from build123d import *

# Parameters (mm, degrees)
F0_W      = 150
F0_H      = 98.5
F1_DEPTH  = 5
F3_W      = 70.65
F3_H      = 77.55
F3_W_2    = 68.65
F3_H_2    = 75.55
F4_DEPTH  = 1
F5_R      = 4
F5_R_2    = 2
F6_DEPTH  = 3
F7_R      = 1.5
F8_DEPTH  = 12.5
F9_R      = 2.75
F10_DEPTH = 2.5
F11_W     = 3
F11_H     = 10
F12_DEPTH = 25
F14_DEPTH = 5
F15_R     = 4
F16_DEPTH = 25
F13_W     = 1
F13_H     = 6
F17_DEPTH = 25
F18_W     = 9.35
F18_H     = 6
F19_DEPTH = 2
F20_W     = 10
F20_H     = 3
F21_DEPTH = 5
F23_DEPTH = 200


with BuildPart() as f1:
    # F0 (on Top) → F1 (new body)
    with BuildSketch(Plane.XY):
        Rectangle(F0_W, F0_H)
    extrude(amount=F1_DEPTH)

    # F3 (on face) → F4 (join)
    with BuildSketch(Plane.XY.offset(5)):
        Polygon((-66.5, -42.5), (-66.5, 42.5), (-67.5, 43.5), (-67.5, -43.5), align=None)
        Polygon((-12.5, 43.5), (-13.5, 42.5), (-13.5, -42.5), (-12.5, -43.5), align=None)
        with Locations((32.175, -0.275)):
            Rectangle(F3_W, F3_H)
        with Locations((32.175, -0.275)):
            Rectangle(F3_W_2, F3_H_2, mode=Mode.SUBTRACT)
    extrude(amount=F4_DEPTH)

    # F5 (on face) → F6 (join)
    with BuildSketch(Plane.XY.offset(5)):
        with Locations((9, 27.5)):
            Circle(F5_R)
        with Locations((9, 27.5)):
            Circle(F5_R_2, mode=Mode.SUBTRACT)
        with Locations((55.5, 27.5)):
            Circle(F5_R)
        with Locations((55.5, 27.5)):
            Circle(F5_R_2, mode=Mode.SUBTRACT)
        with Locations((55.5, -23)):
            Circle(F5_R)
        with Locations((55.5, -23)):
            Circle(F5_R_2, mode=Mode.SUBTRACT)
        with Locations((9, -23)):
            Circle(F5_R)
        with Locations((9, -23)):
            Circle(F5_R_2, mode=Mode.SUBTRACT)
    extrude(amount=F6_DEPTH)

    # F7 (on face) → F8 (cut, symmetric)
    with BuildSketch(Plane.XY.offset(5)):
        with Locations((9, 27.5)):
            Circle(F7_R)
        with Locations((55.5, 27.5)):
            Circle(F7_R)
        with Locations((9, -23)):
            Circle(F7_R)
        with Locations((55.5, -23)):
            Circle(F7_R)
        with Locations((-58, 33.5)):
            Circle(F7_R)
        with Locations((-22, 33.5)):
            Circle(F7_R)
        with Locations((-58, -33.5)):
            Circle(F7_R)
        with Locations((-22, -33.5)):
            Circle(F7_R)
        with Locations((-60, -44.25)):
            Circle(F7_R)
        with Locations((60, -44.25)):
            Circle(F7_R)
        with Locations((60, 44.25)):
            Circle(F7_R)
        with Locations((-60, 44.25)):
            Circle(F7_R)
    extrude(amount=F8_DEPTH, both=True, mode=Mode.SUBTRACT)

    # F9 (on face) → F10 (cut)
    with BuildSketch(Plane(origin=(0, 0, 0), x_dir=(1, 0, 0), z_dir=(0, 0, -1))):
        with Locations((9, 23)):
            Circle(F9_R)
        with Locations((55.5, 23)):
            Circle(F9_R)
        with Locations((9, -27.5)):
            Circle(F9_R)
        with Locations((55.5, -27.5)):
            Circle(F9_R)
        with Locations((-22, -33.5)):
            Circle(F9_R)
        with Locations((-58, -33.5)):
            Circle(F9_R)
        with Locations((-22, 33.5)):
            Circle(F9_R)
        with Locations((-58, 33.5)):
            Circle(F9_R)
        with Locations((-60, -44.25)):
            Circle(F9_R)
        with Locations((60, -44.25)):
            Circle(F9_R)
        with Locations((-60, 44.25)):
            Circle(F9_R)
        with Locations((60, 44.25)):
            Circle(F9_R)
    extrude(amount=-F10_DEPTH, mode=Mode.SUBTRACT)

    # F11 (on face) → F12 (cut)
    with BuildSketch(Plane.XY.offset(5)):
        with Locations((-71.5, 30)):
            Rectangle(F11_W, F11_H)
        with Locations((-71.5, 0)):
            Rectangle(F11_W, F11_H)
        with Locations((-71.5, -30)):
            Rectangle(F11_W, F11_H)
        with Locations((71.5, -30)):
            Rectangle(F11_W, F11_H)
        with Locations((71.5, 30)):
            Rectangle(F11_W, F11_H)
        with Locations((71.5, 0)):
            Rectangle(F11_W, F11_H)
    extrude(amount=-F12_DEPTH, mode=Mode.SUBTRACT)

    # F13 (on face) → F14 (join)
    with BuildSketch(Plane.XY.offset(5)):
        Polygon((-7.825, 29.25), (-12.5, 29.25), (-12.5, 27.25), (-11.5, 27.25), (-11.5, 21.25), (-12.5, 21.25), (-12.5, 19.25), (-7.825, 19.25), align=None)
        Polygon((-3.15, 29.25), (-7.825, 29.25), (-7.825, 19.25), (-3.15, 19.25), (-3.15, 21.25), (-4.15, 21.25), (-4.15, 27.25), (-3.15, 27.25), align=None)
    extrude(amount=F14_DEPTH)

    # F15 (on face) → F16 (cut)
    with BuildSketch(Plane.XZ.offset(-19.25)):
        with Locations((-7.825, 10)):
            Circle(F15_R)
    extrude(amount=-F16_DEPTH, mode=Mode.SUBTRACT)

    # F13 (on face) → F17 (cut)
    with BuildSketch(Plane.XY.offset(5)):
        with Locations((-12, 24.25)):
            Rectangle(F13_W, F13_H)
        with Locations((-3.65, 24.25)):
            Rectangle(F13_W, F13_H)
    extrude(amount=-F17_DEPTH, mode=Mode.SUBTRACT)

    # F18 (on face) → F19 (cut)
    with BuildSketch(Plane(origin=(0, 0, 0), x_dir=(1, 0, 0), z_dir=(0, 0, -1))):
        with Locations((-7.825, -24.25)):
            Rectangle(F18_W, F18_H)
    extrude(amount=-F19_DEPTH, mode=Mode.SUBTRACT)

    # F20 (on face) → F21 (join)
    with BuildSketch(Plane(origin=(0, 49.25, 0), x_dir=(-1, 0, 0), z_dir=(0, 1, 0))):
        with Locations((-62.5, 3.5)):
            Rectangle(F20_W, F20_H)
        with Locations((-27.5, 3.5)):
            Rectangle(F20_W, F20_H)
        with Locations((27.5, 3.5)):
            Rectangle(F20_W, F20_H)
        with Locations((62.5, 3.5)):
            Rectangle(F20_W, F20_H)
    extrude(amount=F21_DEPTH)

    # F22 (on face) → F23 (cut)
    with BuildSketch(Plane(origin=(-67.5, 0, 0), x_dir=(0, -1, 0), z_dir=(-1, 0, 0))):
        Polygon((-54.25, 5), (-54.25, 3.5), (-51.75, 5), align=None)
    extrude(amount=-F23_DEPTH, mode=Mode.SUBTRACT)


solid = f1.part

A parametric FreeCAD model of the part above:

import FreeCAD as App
import Part
import Sketcher
from FreeCAD import Vector

doc = App.newDocument("Part")
body = doc.addObject("PartDesign::Body", "Body")

sketch1 = body.newObject("Sketcher::SketchObject", "Sketch")
sketch1.AttachmentSupport = (doc.getObject("XY_Plane"), [""])
sketch1.MapMode = "FlatFace"
sketch1.addGeometry([
    Part.LineSegment(Vector(-75, 49, 0), Vector(-75, -49, 0)),
    Part.LineSegment(Vector(-75, -49, 0), Vector(75, -49, 0)),
    Part.LineSegment(Vector(75, -49, 0), Vector(75, 49, 0)),
    Part.LineSegment(Vector(75, 49, 0), Vector(-75, 49, 0)),
], False)
sketch1.addConstraint([
    Sketcher.Constraint("Coincident", 0, 2, 1, 1),
    Sketcher.Constraint("Coincident", 1, 2, 2, 1),
    Sketcher.Constraint("Coincident", 2, 2, 3, 1),
    Sketcher.Constraint("Coincident", 3, 2, 0, 1),
    Sketcher.Constraint("Vertical", 0),
    Sketcher.Constraint("Horizontal", 1),
    Sketcher.Constraint("Vertical", 2),
    Sketcher.Constraint("Horizontal", 3),
    Sketcher.Constraint("Symmetric", 0, 2, 2, 2, -1, 1),
    Sketcher.Constraint("DistanceX", 1, 1, 1, 2, 150.0),
    Sketcher.Constraint("DistanceY", 0, 2, 0, 1, 98.5),
])
pad1 = body.newObject("PartDesign::Pad", "Pad")
pad1.Profile = sketch1
pad1.Length = 5

sketch2 = body.newObject("Sketcher::SketchObject", "Sketch001")
sketch2.AttachmentSupport = (doc.getObject("XY_Plane"), [""])
sketch2.MapMode = "FlatFace"
sketch2.AttachmentOffset = App.Placement(Vector(0, 0, 5), App.Rotation())
sketch2.addGeometry([
    Part.LineSegment(Vector(-66.5, -42.5, 0), Vector(-66.5, 42.5, 0)),
    Part.LineSegment(Vector(-66.5, 42.5, 0), Vector(-67.5, 43.5, 0)),
    Part.LineSegment(Vector(-67.5, 43.5, 0), Vector(-67.5, -43.5, 0)),
    Part.LineSegment(Vector(-67.5, -43.5, 0), Vector(-66.5, -42.5, 0)),
    Part.LineSegment(Vector(-12.5, 43.5, 0), Vector(-13.5, 42.5, 0)),
    Part.LineSegment(Vector(-13.5, 42.5, 0), Vector(-13.5, -42.5, 0)),
    Part.LineSegment(Vector(-13.5, -42.5, 0), Vector(-12.5, -43.5, 0)),
    Part.LineSegment(Vector(-12.5, -43.5, 0), Vector(-12.5, 43.5, 0)),
    Part.LineSegment(Vector(-3.1, 38.5, 0), Vector(-3.1, -39, 0)),
    Part.LineSegment(Vector(-3.1, -39, 0), Vector(67.5, -39, 0)),
    Part.LineSegment(Vector(67.5, -39, 0), Vector(67.5, 38.5, 0)),
    Part.LineSegment(Vector(67.5, 38.5, 0), Vector(-3.1, 38.5, 0)),
    Part.LineSegment(Vector(66.5, -38, 0), Vector(-2.1, -38, 0)),
    Part.LineSegment(Vector(-2.1, -38, 0), Vector(-2.1, 37.5, 0)),
    Part.LineSegment(Vector(-2.1, 37.5, 0), Vector(66.5, 37.5, 0)),
    Part.LineSegment(Vector(66.5, 37.5, 0), Vector(66.5, -38, 0)),
], False)
sketch2.addConstraint([
    Sketcher.Constraint("Coincident", 0, 2, 1, 1),
    Sketcher.Constraint("Coincident", 1, 2, 2, 1),
    Sketcher.Constraint("Coincident", 2, 2, 3, 1),
    Sketcher.Constraint("Coincident", 3, 2, 0, 1),
    Sketcher.Constraint("Coincident", 4, 2, 5, 1),
    Sketcher.Constraint("Coincident", 5, 2, 6, 1),
    Sketcher.Constraint("Coincident", 6, 2, 7, 1),
    Sketcher.Constraint("Coincident", 7, 2, 4, 1),
    Sketcher.Constraint("Coincident", 8, 2, 9, 1),
    Sketcher.Constraint("Coincident", 9, 2, 10, 1),
    Sketcher.Constraint("Coincident", 10, 2, 11, 1),
    Sketcher.Constraint("Coincident", 11, 2, 8, 1),
    Sketcher.Constraint("Coincident", 12, 2, 13, 1),
    Sketcher.Constraint("Coincident", 13, 2, 14, 1),
    Sketcher.Constraint("Coincident", 14, 2, 15, 1),
    Sketcher.Constraint("Coincident", 15, 2, 12, 1),
    Sketcher.Constraint("Vertical", 0),
    Sketcher.Constraint("Vertical", 2),
    Sketcher.Constraint("Vertical", 5),
    Sketcher.Constraint("Vertical", 7),
    Sketcher.Constraint("Vertical", 8),
    Sketcher.Constraint("Horizontal", 9),
    Sketcher.Constraint("Vertical", 10),
    Sketcher.Constraint("Horizontal", 11),
    Sketcher.Constraint("Horizontal", 12),
    Sketcher.Constraint("Vertical", 13),
    Sketcher.Constraint("Horizontal", 14),
    Sketcher.Constraint("Vertical", 15),
    Sketcher.Constraint("Perpendicular", 1, 3),
    Sketcher.Constraint("Parallel", 3, 4),
    Sketcher.Constraint("Perpendicular", 4, 6),
    Sketcher.Constraint("Horizontal", 0, 2, 4, 2),
    Sketcher.Constraint("Horizontal", 3, 2, 5, 2),
    Sketcher.Constraint("Horizontal", 2, 2, 6, 2),
    Sketcher.Constraint("Horizontal", 1, 2, 7, 2),
    Sketcher.Constraint("DistanceY", 0, 1, 0, 2, 85.0),
    Sketcher.Constraint("DistanceY", 2, 2, 2, 1, 87.0),
    Sketcher.Constraint("DistanceX", 0, 2, 4, 2, 53.0),
    Sketcher.Constraint("DistanceX", 6, 2, 9, 2, 80.0),
    Sketcher.Constraint("DistanceY", 10, 2, 7, 2, 5.0),
    Sketcher.Constraint("DistanceX", 8, 2, 12, 2, 1.0),
    Sketcher.Constraint("DistanceY", 8, 2, 12, 2, 1.0),
    Sketcher.Constraint("DistanceY", 13, 2, 11, 2, 1.0),
    Sketcher.Constraint("DistanceX", 14, 2, 10, 2, 1.0),
    Sketcher.Constraint("DistanceX", 9, 1, 9, 2, 70.65),
    Sketcher.Constraint("DistanceY", 8, 2, 8, 1, 77.55),
    Sketcher.Constraint("DistanceX", 0, 2, -1, 1, 66.5),
    Sketcher.Constraint("DistanceY", -1, 1, 0, 2, 42.5),
])
pad2 = body.newObject("PartDesign::Pad", "Pad001")
pad2.Profile = sketch2
pad2.Length = 1

sketch3 = body.newObject("Sketcher::SketchObject", "Sketch002")
sketch3.AttachmentSupport = (doc.getObject("XY_Plane"), [""])
sketch3.MapMode = "FlatFace"
sketch3.AttachmentOffset = App.Placement(Vector(0, 0, 5), App.Rotation())
sketch3.addGeometry([
    Part.Circle(Vector(9, 27.5, 0), Vector(0, 0, 1), 4),
    Part.Circle(Vector(9, 27.5, 0), Vector(0, 0, 1), 2),
    Part.Circle(Vector(55.5, 27.5, 0), Vector(0, 0, 1), 4),
    Part.Circle(Vector(55.5, 27.5, 0), Vector(0, 0, 1), 2),
    Part.Circle(Vector(55.5, -23, 0), Vector(0, 0, 1), 4),
    Part.Circle(Vector(55.5, -23, 0), Vector(0, 0, 1), 2),
    Part.Circle(Vector(9, -23, 0), Vector(0, 0, 1), 4),
    Part.Circle(Vector(9, -23, 0), Vector(0, 0, 1), 2),
], False)
sketch3.addConstraint([
    Sketcher.Constraint("Coincident", 1, 3, 0, 3),
    Sketcher.Constraint("Coincident", 3, 3, 2, 3),
    Sketcher.Constraint("Coincident", 5, 3, 4, 3),
    Sketcher.Constraint("Coincident", 7, 3, 6, 3),
    Sketcher.Constraint("Equal", 0, 2),
    Sketcher.Constraint("Equal", 1, 3),
    Sketcher.Constraint("Equal", 2, 4),
    Sketcher.Constraint("Equal", 3, 5),
    Sketcher.Constraint("Equal", 4, 6),
    Sketcher.Constraint("Equal", 5, 7),
    Sketcher.Constraint("Horizontal", 1, 3, 2, 3),
    Sketcher.Constraint("Horizontal", 5, 3, 6, 3),
    Sketcher.Constraint("Vertical", 3, 3, 4, 3),
    Sketcher.Constraint("Vertical", 1, 3, 6, 3),
    Sketcher.Constraint("Diameter", 0, 8.0),
    Sketcher.Constraint("Diameter", 1, 4.0),
    Sketcher.Constraint("DistanceX", -1, 1, 0, 3, 9.0),
    Sketcher.Constraint("DistanceY", 4, 3, -1, 1, 23.0),
    Sketcher.Constraint("DistanceY", -1, 1, 0, 3, 27.5),
    Sketcher.Constraint("DistanceX", -1, 1, 2, 3, 55.5),
])
pad3 = body.newObject("PartDesign::Pad", "Pad002")
pad3.Profile = sketch3
pad3.Length = 3

sketch4 = body.newObject("Sketcher::SketchObject", "Sketch003")
sketch4.AttachmentSupport = (doc.getObject("XY_Plane"), [""])
sketch4.MapMode = "FlatFace"
sketch4.AttachmentOffset = App.Placement(Vector(0, 0, 5), App.Rotation())
sketch4.addGeometry([
    Part.Circle(Vector(9, 27.5, 0), Vector(0, 0, 1), 1.5),
    Part.Circle(Vector(55.5, 27.5, 0), Vector(0, 0, 1), 1.5),
    Part.Circle(Vector(9, -23, 0), Vector(0, 0, 1), 1.5),
    Part.Circle(Vector(55.5, -23, 0), Vector(0, 0, 1), 1.5),
    Part.Circle(Vector(-58, 33.5, 0), Vector(0, 0, 1), 1.5),
    Part.Circle(Vector(-22, 33.5, 0), Vector(0, 0, 1), 1.5),
    Part.Circle(Vector(-58, -33.5, 0), Vector(0, 0, 1), 1.5),
    Part.Circle(Vector(-22, -33.5, 0), Vector(0, 0, 1), 1.5),
    Part.Circle(Vector(-60, -44.2, 0), Vector(0, 0, 1), 1.5),
    Part.Circle(Vector(60, -44.2, 0), Vector(0, 0, 1), 1.5),
    Part.Circle(Vector(60, 44.2, 0), Vector(0, 0, 1), 1.5),
    Part.Circle(Vector(-60, 44.2, 0), Vector(0, 0, 1), 1.5),
], False)
sketch4.addConstraint([
    Sketcher.Constraint("Equal", 0, 1),
    Sketcher.Constraint("Equal", 1, 2),
    Sketcher.Constraint("Equal", 2, 3),
    Sketcher.Constraint("Equal", 3, 4),
    Sketcher.Constraint("Equal", 4, 5),
    Sketcher.Constraint("Equal", 5, 6),
    Sketcher.Constraint("Equal", 6, 7),
    Sketcher.Constraint("Equal", 7, 8),
    Sketcher.Constraint("Equal", 8, 9),
    Sketcher.Constraint("Equal", 9, 10),
    Sketcher.Constraint("Equal", 10, 11),
    Sketcher.Constraint("Symmetric", 8, 3, 10, 3, -1, 1),
    Sketcher.Constraint("Symmetric", 9, 3, 11, 3, -1, 1),
    Sketcher.Constraint("Symmetric", 8, 3, 9, 3, -2),
    Sketcher.Constraint("Symmetric", 4, 3, 6, 3, -1),
    Sketcher.Constraint("Symmetric", 5, 3, 7, 3, -1),
    Sketcher.Constraint("Horizontal", 0, 3, 1, 3),
    Sketcher.Constraint("Horizontal", 2, 3, 3, 3),
    Sketcher.Constraint("Horizontal", 4, 3, 5, 3),
    Sketcher.Constraint("Vertical", 0, 3, 2, 3),
    Sketcher.Constraint("Vertical", 1, 3, 3, 3),
    Sketcher.Constraint("Diameter", 0, 3.0),
    Sketcher.Constraint("DistanceX", -1, 1, 0, 3, 9.0),
    Sketcher.Constraint("DistanceY", 2, 3, -1, 1, 23.0),
    Sketcher.Constraint("DistanceX", 4, 3, -1, 1, 58.0),
    Sketcher.Constraint("DistanceX", 5, 3, -1, 1, 22.0),
    Sketcher.Constraint("DistanceX", 8, 3, -1, 1, 60.0),
    Sketcher.Constraint("DistanceY", 0, 3, 4, 3, 6.0),
    Sketcher.Constraint("DistanceY", 6, 3, 4, 3, 67.0),
    Sketcher.Constraint("DistanceX", -1, 1, 1, 3, 55.5),
    Sketcher.Constraint("DistanceY", 8, 3, -1, 1, 44.25),
])
pocket1 = body.newObject("PartDesign::Pocket", "Pocket")
pocket1.Profile = sketch4
pocket1.Length = 25
pocket1.Midplane = True

sketch5 = body.newObject("Sketcher::SketchObject", "Sketch004")
sketch5.AttachmentSupport = (doc.getObject("XY_Plane"), [""])
sketch5.MapMode = "FlatFace"
sketch5.addGeometry([
    Part.Circle(Vector(9, -23, 0), Vector(0, 0, 1), 2.8),
    Part.Circle(Vector(55.5, -23, 0), Vector(0, 0, 1), 2.8),
    Part.Circle(Vector(9, 27.5, 0), Vector(0, 0, 1), 2.8),
    Part.Circle(Vector(55.5, 27.5, 0), Vector(0, 0, 1), 2.8),
    Part.Circle(Vector(-22, 33.5, 0), Vector(0, 0, 1), 2.8),
    Part.Circle(Vector(-58, 33.5, 0), Vector(0, 0, 1), 2.8),
    Part.Circle(Vector(-22, -33.5, 0), Vector(0, 0, 1), 2.8),
    Part.Circle(Vector(-58, -33.5, 0), Vector(0, 0, 1), 2.8),
    Part.Circle(Vector(-60, 44.2, 0), Vector(0, 0, 1), 2.8),
    Part.Circle(Vector(60, 44.2, 0), Vector(0, 0, 1), 2.8),
    Part.Circle(Vector(-60, -44.2, 0), Vector(0, 0, 1), 2.8),
    Part.Circle(Vector(60, -44.2, 0), Vector(0, 0, 1), 2.8),
], False)
sketch5.addConstraint([
    Sketcher.Constraint("Equal", 0, 1),
    Sketcher.Constraint("Equal", 1, 2),
    Sketcher.Constraint("Equal", 2, 3),
    Sketcher.Constraint("Equal", 3, 4),
    Sketcher.Constraint("Equal", 4, 5),
    Sketcher.Constraint("Equal", 5, 6),
    Sketcher.Constraint("Equal", 6, 7),
    Sketcher.Constraint("Equal", 7, 8),
    Sketcher.Constraint("Equal", 8, 9),
    Sketcher.Constraint("Equal", 9, 10),
    Sketcher.Constraint("Equal", 10, 11),
    Sketcher.Constraint("Symmetric", 9, 3, 10, 3, -1, 1),
    Sketcher.Constraint("Symmetric", 8, 3, 11, 3, -1, 1),
    Sketcher.Constraint("Symmetric", 8, 3, 9, 3, -2),
    Sketcher.Constraint("Symmetric", 4, 3, 6, 3, -1),
    Sketcher.Constraint("Symmetric", 5, 3, 7, 3, -1),
    Sketcher.Constraint("Horizontal", 0, 3, 1, 3),
    Sketcher.Constraint("Horizontal", 2, 3, 3, 3),
    Sketcher.Constraint("Horizontal", 4, 3, 5, 3),
    Sketcher.Constraint("Vertical", 0, 3, 2, 3),
    Sketcher.Constraint("Vertical", 1, 3, 3, 3),
    Sketcher.Constraint("Diameter", 0, 5.5),
    Sketcher.Constraint("DistanceX", -1, 1, 0, 3, 9.0),
    Sketcher.Constraint("DistanceY", 0, 3, -1, 1, 23.0),
    Sketcher.Constraint("DistanceX", 4, 3, -1, 1, 22.0),
    Sketcher.Constraint("DistanceX", 5, 3, -1, 1, 58.0),
    Sketcher.Constraint("DistanceX", 8, 3, -1, 1, 60.0),
    Sketcher.Constraint("DistanceY", 2, 3, 4, 3, 6.0),
    Sketcher.Constraint("DistanceY", 6, 3, 4, 3, 67.0),
    Sketcher.Constraint("DistanceX", -1, 1, 1, 3, 55.5),
    Sketcher.Constraint("DistanceY", -1, 1, 8, 3, 44.25),
])
pocket2 = body.newObject("PartDesign::Pocket", "Pocket001")
pocket2.Profile = sketch5
pocket2.Length = 2.5
pocket2.Reversed = True

sketch6 = body.newObject("Sketcher::SketchObject", "Sketch005")
sketch6.AttachmentSupport = (doc.getObject("XY_Plane"), [""])
sketch6.MapMode = "FlatFace"
sketch6.AttachmentOffset = App.Placement(Vector(0, 0, 5), App.Rotation())
sketch6.addGeometry([
    Part.LineSegment(Vector(-73, 35, 0), Vector(-73, 25, 0)),
    Part.LineSegment(Vector(-73, 25, 0), Vector(-70, 25, 0)),
    Part.LineSegment(Vector(-70, 25, 0), Vector(-70, 35, 0)),
    Part.LineSegment(Vector(-70, 35, 0), Vector(-73, 35, 0)),
    Part.LineSegment(Vector(-73, 5, 0), Vector(-73, -5, 0)),
    Part.LineSegment(Vector(-73, -5, 0), Vector(-70, -5, 0)),
    Part.LineSegment(Vector(-70, -5, 0), Vector(-70, 5, 0)),
    Part.LineSegment(Vector(-70, 5, 0), Vector(-73, 5, 0)),
    Part.LineSegment(Vector(-73, -25, 0), Vector(-73, -35, 0)),
    Part.LineSegment(Vector(-73, -35, 0), Vector(-70, -35, 0)),
    Part.LineSegment(Vector(-70, -35, 0), Vector(-70, -25, 0)),
    Part.LineSegment(Vector(-70, -25, 0), Vector(-73, -25, 0)),
    Part.LineSegment(Vector(70, -25, 0), Vector(70, -35, 0)),
    Part.LineSegment(Vector(70, -35, 0), Vector(73, -35, 0)),
    Part.LineSegment(Vector(73, -35, 0), Vector(73, -25, 0)),
    Part.LineSegment(Vector(73, -25, 0), Vector(70, -25, 0)),
    Part.LineSegment(Vector(70, 35, 0), Vector(70, 25, 0)),
    Part.LineSegment(Vector(70, 25, 0), Vector(73, 25, 0)),
    Part.LineSegment(Vector(73, 25, 0), Vector(73, 35, 0)),
    Part.LineSegment(Vector(73, 35, 0), Vector(70, 35, 0)),
    Part.LineSegment(Vector(70, 5, 0), Vector(70, -5, 0)),
    Part.LineSegment(Vector(70, -5, 0), Vector(73, -5, 0)),
    Part.LineSegment(Vector(73, -5, 0), Vector(73, 5, 0)),
    Part.LineSegment(Vector(73, 5, 0), Vector(70, 5, 0)),
], False)
sketch6.addConstraint([
    Sketcher.Constraint("Coincident", 0, 2, 1, 1),
    Sketcher.Constraint("Coincident", 1, 2, 2, 1),
    Sketcher.Constraint("Coincident", 2, 2, 3, 1),
    Sketcher.Constraint("Coincident", 3, 2, 0, 1),
    Sketcher.Constraint("Coincident", 4, 2, 5, 1),
    Sketcher.Constraint("Coincident", 5, 2, 6, 1),
    Sketcher.Constraint("Coincident", 6, 2, 7, 1),
    Sketcher.Constraint("Coincident", 7, 2, 4, 1),
    Sketcher.Constraint("Coincident", 8, 2, 9, 1),
    Sketcher.Constraint("Coincident", 9, 2, 10, 1),
    Sketcher.Constraint("Coincident", 10, 2, 11, 1),
    Sketcher.Constraint("Coincident", 11, 2, 8, 1),
    Sketcher.Constraint("Coincident", 12, 2, 13, 1),
    Sketcher.Constraint("Coincident", 13, 2, 14, 1),
    Sketcher.Constraint("Coincident", 14, 2, 15, 1),
    Sketcher.Constraint("Coincident", 15, 2, 12, 1),
    Sketcher.Constraint("Coincident", 16, 2, 17, 1),
    Sketcher.Constraint("Coincident", 17, 2, 18, 1),
    Sketcher.Constraint("Coincident", 18, 2, 19, 1),
    Sketcher.Constraint("Coincident", 19, 2, 16, 1),
    Sketcher.Constraint("Coincident", 20, 2, 21, 1),
    Sketcher.Constraint("Coincident", 21, 2, 22, 1),
    Sketcher.Constraint("Coincident", 22, 2, 23, 1),
    Sketcher.Constraint("Coincident", 23, 2, 20, 1),
    Sketcher.Constraint("Vertical", 0),
    Sketcher.Constraint("Horizontal", 1),
    Sketcher.Constraint("Vertical", 2),
    Sketcher.Constraint("Horizontal", 3),
    Sketcher.Constraint("Vertical", 4),
    Sketcher.Constraint("Horizontal", 5),
    Sketcher.Constraint("Vertical", 6),
    Sketcher.Constraint("Horizontal", 7),
    Sketcher.Constraint("Vertical", 8),
    Sketcher.Constraint("Horizontal", 9),
    Sketcher.Constraint("Vertical", 10),
    Sketcher.Constraint("Horizontal", 11),
    Sketcher.Constraint("Vertical", 12),
    Sketcher.Constraint("Horizontal", 13),
    Sketcher.Constraint("Vertical", 14),
    Sketcher.Constraint("Horizontal", 15),
    Sketcher.Constraint("Vertical", 16),
    Sketcher.Constraint("Horizontal", 17),
    Sketcher.Constraint("Vertical", 18),
    Sketcher.Constraint("Horizontal", 19),
    Sketcher.Constraint("Vertical", 20),
    Sketcher.Constraint("Horizontal", 21),
    Sketcher.Constraint("Vertical", 22),
    Sketcher.Constraint("Horizontal", 23),
    Sketcher.Constraint("Symmetric", 2, 2, 12, 2, -1, 1),
    Sketcher.Constraint("Symmetric", 0, 2, 14, 2, -1, 1),
    Sketcher.Constraint("Symmetric", 10, 2, 16, 2, -1, 1),
    Sketcher.Constraint("Symmetric", 8, 2, 18, 2, -1, 1),
    Sketcher.Constraint("Symmetric", 6, 2, 20, 2, -1, 1),
    Sketcher.Constraint("Symmetric", 4, 2, 22, 2, -1, 1),
    Sketcher.Constraint("Symmetric", 9, 2, 12, 2, -2),
    Sketcher.Constraint("Symmetric", 11, 2, 14, 2, -2),
    Sketcher.Constraint("Horizontal", 5, 2, 20, 2),
    Sketcher.Constraint("Vertical", 3, 2, 4, 2),
    Sketcher.Constraint("Vertical", 2, 2, 5, 2),
    Sketcher.Constraint("Equal", 2, 4),
    Sketcher.Constraint("DistanceX", 1, 1, 1, 2, 3.0),
    Sketcher.Constraint("DistanceY", 0, 2, 0, 1, 10.0),
    Sketcher.Constraint("DistanceX", 0, 2, -1, 1, 73.0),
    Sketcher.Constraint("DistanceY", -1, 1, 0, 2, 25.0),
])
pocket3 = body.newObject("PartDesign::Pocket", "Pocket002")
pocket3.Profile = sketch6
pocket3.Length = 25

sketch7 = body.newObject("Sketcher::SketchObject", "Sketch006")
sketch7.AttachmentSupport = (doc.getObject("XY_Plane"), [""])
sketch7.MapMode = "FlatFace"
sketch7.AttachmentOffset = App.Placement(Vector(0, 0, 5), App.Rotation())
sketch7.addGeometry([
    Part.LineSegment(Vector(-12.5, 29.2, 0), Vector(-12.5, 27.2, 0)),
    Part.LineSegment(Vector(-12.5, 27.2, 0), Vector(-11.5, 27.2, 0)),
    Part.LineSegment(Vector(-11.5, 27.2, 0), Vector(-11.5, 21.2, 0)),
    Part.LineSegment(Vector(-11.5, 21.2, 0), Vector(-12.5, 21.2, 0)),
    Part.LineSegment(Vector(-12.5, 21.2, 0), Vector(-12.5, 19.2, 0)),
    Part.LineSegment(Vector(-12.5, 19.2, 0), Vector(-3.1, 19.2, 0)),
    Part.LineSegment(Vector(-3.1, 19.2, 0), Vector(-3.1, 21.2, 0)),
    Part.LineSegment(Vector(-3.1, 21.2, 0), Vector(-4.2, 21.2, 0)),
    Part.LineSegment(Vector(-4.2, 21.2, 0), Vector(-4.2, 27.2, 0)),
    Part.LineSegment(Vector(-4.2, 27.2, 0), Vector(-3.1, 27.2, 0)),
    Part.LineSegment(Vector(-3.1, 27.2, 0), Vector(-3.1, 29.2, 0)),
    Part.LineSegment(Vector(-3.1, 29.2, 0), Vector(-12.5, 29.2, 0)),
], False)
sketch7.addConstraint([
    Sketcher.Constraint("Coincident", 0, 2, 1, 1),
    Sketcher.Constraint("Coincident", 1, 2, 2, 1),
    Sketcher.Constraint("Coincident", 2, 2, 3, 1),
    Sketcher.Constraint("Coincident", 3, 2, 4, 1),
    Sketcher.Constraint("Coincident", 4, 2, 5, 1),
    Sketcher.Constraint("Coincident", 5, 2, 6, 1),
    Sketcher.Constraint("Coincident", 6, 2, 7, 1),
    Sketcher.Constraint("Coincident", 7, 2, 8, 1),
    Sketcher.Constraint("Coincident", 8, 2, 9, 1),
    Sketcher.Constraint("Coincident", 9, 2, 10, 1),
    Sketcher.Constraint("Coincident", 10, 2, 11, 1),
    Sketcher.Constraint("Coincident", 11, 2, 0, 1),
    Sketcher.Constraint("Vertical", 0),
    Sketcher.Constraint("Horizontal", 1),
    Sketcher.Constraint("Vertical", 2),
    Sketcher.Constraint("Horizontal", 3),
    Sketcher.Constraint("Vertical", 4),
    Sketcher.Constraint("Horizontal", 5),
    Sketcher.Constraint("Vertical", 6),
    Sketcher.Constraint("Horizontal", 7),
    Sketcher.Constraint("Vertical", 8),
    Sketcher.Constraint("Horizontal", 9),
    Sketcher.Constraint("Vertical", 10),
    Sketcher.Constraint("Horizontal", 11),
    Sketcher.Constraint("Horizontal", 3, 2, 6, 2),
    Sketcher.Constraint("Horizontal", 1, 2, 8, 2),
    Sketcher.Constraint("Vertical", 0, 2, 3, 2),
    Sketcher.Constraint("Vertical", 6, 2, 9, 2),
    Sketcher.Constraint("Equal", 3, 7),
    Sketcher.Constraint("Equal", 0, 4),
    Sketcher.Constraint("DistanceX", 1, 1, 1, 2, 1.0),
    Sketcher.Constraint("DistanceY", 0, 2, 0, 1, 2.0),
    Sketcher.Constraint("DistanceY", 2, 2, 2, 1, 6.0),
    Sketcher.Constraint("DistanceX", 5, 1, 5, 2, 9.35),
    Sketcher.Constraint("DistanceX", 0, 2, -1, 1, 12.5),
    Sketcher.Constraint("DistanceY", -1, 1, 0, 2, 27.25),
])
pad4 = body.newObject("PartDesign::Pad", "Pad003")
pad4.Profile = sketch7
pad4.Length = 5

sketch8 = body.newObject("Sketcher::SketchObject", "Sketch007")
sketch8.AttachmentSupport = (doc.getObject("XZ_Plane"), [""])
sketch8.MapMode = "FlatFace"
sketch8.AttachmentOffset = App.Placement(Vector(0, 0, -19.25), App.Rotation())
sketch8.addGeometry(Part.Circle(Vector(-7.8, 10, 0), Vector(0, 0, 1), 4), False)
sketch8.addConstraint([
    Sketcher.Constraint("Diameter", 0, 8.0),
    Sketcher.Constraint("DistanceY", -1, 1, 0, 3, 10.0),
    Sketcher.Constraint("DistanceX", 0, 3, -1, 1, 7.825),
])
pocket4 = body.newObject("PartDesign::Pocket", "Pocket003")
pocket4.Profile = sketch8
pocket4.Length = 25

sketch9 = body.newObject("Sketcher::SketchObject", "Sketch008")
sketch9.AttachmentSupport = (doc.getObject("XY_Plane"), [""])
sketch9.MapMode = "FlatFace"
sketch9.AttachmentOffset = App.Placement(Vector(0, 0, 5), App.Rotation())
sketch9.addGeometry([
    Part.LineSegment(Vector(-12.5, 27.2, 0), Vector(-12.5, 21.2, 0)),
    Part.LineSegment(Vector(-12.5, 21.2, 0), Vector(-11.5, 21.2, 0)),
    Part.LineSegment(Vector(-11.5, 21.2, 0), Vector(-11.5, 27.2, 0)),
    Part.LineSegment(Vector(-11.5, 27.2, 0), Vector(-12.5, 27.2, 0)),
    Part.LineSegment(Vector(-4.2, 27.2, 0), Vector(-4.2, 21.2, 0)),
    Part.LineSegment(Vector(-4.2, 21.2, 0), Vector(-3.1, 21.2, 0)),
    Part.LineSegment(Vector(-3.1, 21.2, 0), Vector(-3.1, 27.2, 0)),
    Part.LineSegment(Vector(-3.1, 27.2, 0), Vector(-4.2, 27.2, 0)),
], False)
sketch9.addConstraint([
    Sketcher.Constraint("Coincident", 0, 2, 1, 1),
    Sketcher.Constraint("Coincident", 1, 2, 2, 1),
    Sketcher.Constraint("Coincident", 2, 2, 3, 1),
    Sketcher.Constraint("Coincident", 3, 2, 0, 1),
    Sketcher.Constraint("Coincident", 4, 2, 5, 1),
    Sketcher.Constraint("Coincident", 5, 2, 6, 1),
    Sketcher.Constraint("Coincident", 6, 2, 7, 1),
    Sketcher.Constraint("Coincident", 7, 2, 4, 1),
    Sketcher.Constraint("Vertical", 0),
    Sketcher.Constraint("Horizontal", 1),
    Sketcher.Constraint("Vertical", 2),
    Sketcher.Constraint("Horizontal", 3),
    Sketcher.Constraint("Vertical", 4),
    Sketcher.Constraint("Horizontal", 5),
    Sketcher.Constraint("Vertical", 6),
    Sketcher.Constraint("Horizontal", 7),
    Sketcher.Constraint("Horizontal", 1, 2, 4, 2),
    Sketcher.Constraint("Horizontal", 3, 2, 6, 2),
    Sketcher.Constraint("Equal", 3, 5),
    Sketcher.Constraint("DistanceX", 1, 1, 1, 2, 1.0),
    Sketcher.Constraint("DistanceY", 0, 2, 0, 1, 6.0),
    Sketcher.Constraint("DistanceX", 0, 2, -1, 1, 12.5),
    Sketcher.Constraint("DistanceY", -1, 1, 0, 2, 21.25),
    Sketcher.Constraint("DistanceX", 4, 2, -1, 1, 4.15),
])
pocket5 = body.newObject("PartDesign::Pocket", "Pocket004")
pocket5.Profile = sketch9
pocket5.Length = 25

sketch10 = body.newObject("Sketcher::SketchObject", "Sketch009")
sketch10.AttachmentSupport = (doc.getObject("XY_Plane"), [""])
sketch10.MapMode = "FlatFace"
sketch10.addGeometry([
    Part.LineSegment(Vector(-12, 21, 0), Vector(-12, 27, 0)),
    Part.LineSegment(Vector(-12, 27, 0), Vector(-3, 27, 0)),
    Part.LineSegment(Vector(-3, 27, 0), Vector(-3, 21, 0)),
    Part.LineSegment(Vector(-3, 21, 0), Vector(-12, 21, 0)),
], False)
sketch10.addConstraint([
    Sketcher.Constraint("Coincident", 0, 2, 1, 1),
    Sketcher.Constraint("Coincident", 1, 2, 2, 1),
    Sketcher.Constraint("Coincident", 2, 2, 3, 1),
    Sketcher.Constraint("Coincident", 3, 2, 0, 1),
    Sketcher.Constraint("Vertical", 0),
    Sketcher.Constraint("Horizontal", 1),
    Sketcher.Constraint("Vertical", 2),
    Sketcher.Constraint("Horizontal", 3),
    Sketcher.Constraint("DistanceY", 0, 1, 0, 2, 6.0),
    Sketcher.Constraint("DistanceX", 1, 1, 1, 2, 9.35),
    Sketcher.Constraint("DistanceX", 0, 2, -1, 1, 12.5),
    Sketcher.Constraint("DistanceY", -1, 1, 0, 2, 27.25),
])
pocket6 = body.newObject("PartDesign::Pocket", "Pocket005")
pocket6.Profile = sketch10
pocket6.Length = 2
pocket6.Reversed = True

sketch11 = body.newObject("Sketcher::SketchObject", "Sketch010")
sketch11.AttachmentSupport = (doc.getObject("XZ_Plane"), [""])
sketch11.MapMode = "FlatFace"
sketch11.AttachmentOffset = App.Placement(Vector(0, 0, -49.25), App.Rotation())
sketch11.addGeometry([
    Part.LineSegment(Vector(67.5, 5, 0), Vector(67.5, 2, 0)),
    Part.LineSegment(Vector(67.5, 2, 0), Vector(57.5, 2, 0)),
    Part.LineSegment(Vector(57.5, 2, 0), Vector(57.5, 5, 0)),
    Part.LineSegment(Vector(57.5, 5, 0), Vector(67.5, 5, 0)),
    Part.LineSegment(Vector(32.5, 5, 0), Vector(32.5, 2, 0)),
    Part.LineSegment(Vector(32.5, 2, 0), Vector(22.5, 2, 0)),
    Part.LineSegment(Vector(22.5, 2, 0), Vector(22.5, 5, 0)),
    Part.LineSegment(Vector(22.5, 5, 0), Vector(32.5, 5, 0)),
    Part.LineSegment(Vector(-22.5, 5, 0), Vector(-22.5, 2, 0)),
    Part.LineSegment(Vector(-22.5, 2, 0), Vector(-32.5, 2, 0)),
    Part.LineSegment(Vector(-32.5, 2, 0), Vector(-32.5, 5, 0)),
    Part.LineSegment(Vector(-32.5, 5, 0), Vector(-22.5, 5, 0)),
    Part.LineSegment(Vector(-57.5, 5, 0), Vector(-57.5, 2, 0)),
    Part.LineSegment(Vector(-57.5, 2, 0), Vector(-67.5, 2, 0)),
    Part.LineSegment(Vector(-67.5, 2, 0), Vector(-67.5, 5, 0)),
    Part.LineSegment(Vector(-67.5, 5, 0), Vector(-57.5, 5, 0)),
], False)
sketch11.addConstraint([
    Sketcher.Constraint("Coincident", 0, 2, 1, 1),
    Sketcher.Constraint("Coincident", 1, 2, 2, 1),
    Sketcher.Constraint("Coincident", 2, 2, 3, 1),
    Sketcher.Constraint("Coincident", 3, 2, 0, 1),
    Sketcher.Constraint("Coincident", 4, 2, 5, 1),
    Sketcher.Constraint("Coincident", 5, 2, 6, 1),
    Sketcher.Constraint("Coincident", 6, 2, 7, 1),
    Sketcher.Constraint("Coincident", 7, 2, 4, 1),
    Sketcher.Constraint("Coincident", 8, 2, 9, 1),
    Sketcher.Constraint("Coincident", 9, 2, 10, 1),
    Sketcher.Constraint("Coincident", 10, 2, 11, 1),
    Sketcher.Constraint("Coincident", 11, 2, 8, 1),
    Sketcher.Constraint("Coincident", 12, 2, 13, 1),
    Sketcher.Constraint("Coincident", 13, 2, 14, 1),
    Sketcher.Constraint("Coincident", 14, 2, 15, 1),
    Sketcher.Constraint("Coincident", 15, 2, 12, 1),
    Sketcher.Constraint("Vertical", 0),
    Sketcher.Constraint("Horizontal", 1),
    Sketcher.Constraint("Vertical", 2),
    Sketcher.Constraint("Horizontal", 3),
    Sketcher.Constraint("Vertical", 4),
    Sketcher.Constraint("Horizontal", 5),
    Sketcher.Constraint("Vertical", 6),
    Sketcher.Constraint("Horizontal", 7),
    Sketcher.Constraint("Vertical", 8),
    Sketcher.Constraint("Horizontal", 9),
    Sketcher.Constraint("Vertical", 10),
    Sketcher.Constraint("Horizontal", 11),
    Sketcher.Constraint("Vertical", 12),
    Sketcher.Constraint("Horizontal", 13),
    Sketcher.Constraint("Vertical", 14),
    Sketcher.Constraint("Horizontal", 15),
    Sketcher.Constraint("Symmetric", 5, 2, 8, 2, -2),
    Sketcher.Constraint("Symmetric", 7, 2, 10, 2, -2),
    Sketcher.Constraint("Symmetric", 1, 2, 12, 2, -2),
    Sketcher.Constraint("Symmetric", 3, 2, 14, 2, -2),
    Sketcher.Constraint("Horizontal", 1, 2, 4, 2),
    Sketcher.Constraint("Horizontal", 3, 2, 6, 2),
    Sketcher.Constraint("Equal", 3, 5),
    Sketcher.Constraint("DistanceX", 1, 2, 1, 1, 10.0),
    Sketcher.Constraint("DistanceY", 0, 2, 0, 1, 3.0),
    Sketcher.Constraint("DistanceY", -1, 1, 0, 2, 2.0),
    Sketcher.Constraint("DistanceX", 4, 2, 1, 2, 25.0),
    Sketcher.Constraint("DistanceX", 8, 2, 5, 2, 45.0),
])
pad5 = body.newObject("PartDesign::Pad", "Pad004")
pad5.Profile = sketch11
pad5.Length = 5
pad5.Reversed = True

sketch12 = body.newObject("Sketcher::SketchObject", "Sketch011")
sketch12.AttachmentSupport = (doc.getObject("YZ_Plane"), [""])
sketch12.MapMode = "FlatFace"
sketch12.AttachmentOffset = App.Placement(Vector(0, 0, -67.5), App.Rotation())
sketch12.addGeometry([
    Part.LineSegment(Vector(54.2, 5, 0), Vector(54.2, 3.5, 0)),
    Part.LineSegment(Vector(54.2, 3.5, 0), Vector(51.8, 5, 0)),
    Part.LineSegment(Vector(51.8, 5, 0), Vector(54.2, 5, 0)),
], False)
sketch12.addConstraint([
    Sketcher.Constraint("Coincident", 0, 2, 1, 1),
    Sketcher.Constraint("Coincident", 1, 2, 2, 1),
    Sketcher.Constraint("Coincident", 2, 2, 0, 1),
    Sketcher.Constraint("Vertical", 0),
    Sketcher.Constraint("Horizontal", 2),
    Sketcher.Constraint("DistanceX", 2, 1, 2, 2, 2.5),
    Sketcher.Constraint("DistanceY", 0, 2, 0, 1, 1.5),
    Sketcher.Constraint("DistanceY", -1, 1, 1, 2, 5.0),
    Sketcher.Constraint("DistanceX", -1, 1, 0, 2, 54.25),
])
pocket7 = body.newObject("PartDesign::Pocket", "Pocket006")
pocket7.Profile = sketch12
pocket7.Length = 200
pocket7.Reversed = True

doc.recompute()
